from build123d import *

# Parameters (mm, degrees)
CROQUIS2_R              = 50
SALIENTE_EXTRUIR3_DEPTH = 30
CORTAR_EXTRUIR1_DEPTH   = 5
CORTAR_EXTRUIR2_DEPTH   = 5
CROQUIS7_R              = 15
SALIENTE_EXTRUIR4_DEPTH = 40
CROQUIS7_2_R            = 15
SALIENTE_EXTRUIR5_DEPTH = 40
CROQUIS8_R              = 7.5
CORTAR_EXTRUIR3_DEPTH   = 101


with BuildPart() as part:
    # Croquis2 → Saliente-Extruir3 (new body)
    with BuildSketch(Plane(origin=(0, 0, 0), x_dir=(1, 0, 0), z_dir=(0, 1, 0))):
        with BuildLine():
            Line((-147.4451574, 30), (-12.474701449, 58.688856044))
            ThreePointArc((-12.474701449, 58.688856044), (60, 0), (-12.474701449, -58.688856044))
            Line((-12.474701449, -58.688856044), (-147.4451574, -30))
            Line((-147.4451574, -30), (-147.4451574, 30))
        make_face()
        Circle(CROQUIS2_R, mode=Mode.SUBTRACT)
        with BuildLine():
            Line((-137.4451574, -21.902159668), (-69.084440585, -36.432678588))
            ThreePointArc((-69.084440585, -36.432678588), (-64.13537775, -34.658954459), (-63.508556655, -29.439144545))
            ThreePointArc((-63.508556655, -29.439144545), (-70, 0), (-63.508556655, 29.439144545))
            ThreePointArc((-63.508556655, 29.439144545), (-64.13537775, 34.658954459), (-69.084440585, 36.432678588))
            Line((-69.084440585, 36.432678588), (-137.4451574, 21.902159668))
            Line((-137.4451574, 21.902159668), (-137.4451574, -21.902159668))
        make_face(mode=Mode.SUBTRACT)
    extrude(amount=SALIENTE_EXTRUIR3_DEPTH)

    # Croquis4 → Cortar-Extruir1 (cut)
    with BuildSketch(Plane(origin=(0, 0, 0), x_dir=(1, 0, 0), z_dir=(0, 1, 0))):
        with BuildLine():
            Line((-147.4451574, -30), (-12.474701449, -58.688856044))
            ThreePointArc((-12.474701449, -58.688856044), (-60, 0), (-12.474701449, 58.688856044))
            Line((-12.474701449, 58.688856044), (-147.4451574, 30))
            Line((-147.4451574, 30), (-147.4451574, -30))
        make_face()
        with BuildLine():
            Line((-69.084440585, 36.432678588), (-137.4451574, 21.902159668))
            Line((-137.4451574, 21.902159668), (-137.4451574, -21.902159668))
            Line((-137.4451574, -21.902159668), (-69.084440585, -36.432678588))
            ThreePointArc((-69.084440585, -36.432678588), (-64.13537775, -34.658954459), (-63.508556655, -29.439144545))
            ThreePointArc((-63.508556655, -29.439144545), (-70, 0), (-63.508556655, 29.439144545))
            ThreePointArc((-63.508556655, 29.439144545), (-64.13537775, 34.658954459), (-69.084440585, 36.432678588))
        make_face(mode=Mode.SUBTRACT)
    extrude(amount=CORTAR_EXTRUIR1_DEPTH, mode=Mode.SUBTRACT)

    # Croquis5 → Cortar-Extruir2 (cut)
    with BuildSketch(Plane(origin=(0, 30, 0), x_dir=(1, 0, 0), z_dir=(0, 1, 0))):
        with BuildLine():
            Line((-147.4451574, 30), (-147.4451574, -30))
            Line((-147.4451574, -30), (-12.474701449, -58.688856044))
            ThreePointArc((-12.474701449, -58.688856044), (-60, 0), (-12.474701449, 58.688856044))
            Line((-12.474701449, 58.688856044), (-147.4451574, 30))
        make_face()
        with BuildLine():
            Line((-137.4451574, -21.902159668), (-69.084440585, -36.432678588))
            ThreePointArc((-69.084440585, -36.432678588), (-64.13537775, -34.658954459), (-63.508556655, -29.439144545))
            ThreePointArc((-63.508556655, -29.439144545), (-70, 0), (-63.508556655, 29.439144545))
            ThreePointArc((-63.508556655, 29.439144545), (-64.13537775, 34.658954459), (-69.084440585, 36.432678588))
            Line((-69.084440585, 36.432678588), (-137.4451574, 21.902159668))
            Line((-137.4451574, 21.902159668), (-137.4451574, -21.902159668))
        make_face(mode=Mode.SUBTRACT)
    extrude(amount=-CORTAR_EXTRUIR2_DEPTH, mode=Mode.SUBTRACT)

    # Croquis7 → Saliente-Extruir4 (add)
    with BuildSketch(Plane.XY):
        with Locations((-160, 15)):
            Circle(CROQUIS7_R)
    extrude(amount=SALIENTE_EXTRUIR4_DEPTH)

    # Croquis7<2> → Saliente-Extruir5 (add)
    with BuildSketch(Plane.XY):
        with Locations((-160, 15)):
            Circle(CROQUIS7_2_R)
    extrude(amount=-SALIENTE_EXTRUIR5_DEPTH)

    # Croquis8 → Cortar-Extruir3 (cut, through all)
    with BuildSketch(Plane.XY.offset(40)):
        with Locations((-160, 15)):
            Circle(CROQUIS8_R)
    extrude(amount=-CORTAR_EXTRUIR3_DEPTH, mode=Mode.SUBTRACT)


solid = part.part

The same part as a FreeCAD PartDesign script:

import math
import FreeCAD as App
import Part
import Sketcher

V = App.Vector
Q = App.Units.Quantity

doc = App.newDocument("Part")
body = doc.addObject("PartDesign::Body", "Body")

# Sketch on XZ plane
sketch1 = doc.addObject("Sketcher::SketchObject", "Sketch")
body.addObject(sketch1)
sketch1.AttachmentSupport = (doc.XZ_Plane, [""])
sketch1.MapMode = "FlatFace"
sketch1.addGeometry([
    Part.LineSegment(V(-12, -59, 0), V(-147, -30, 0)),  # 0
    Part.LineSegment(V(-147, -30, 0), V(-147, 30, 0)),  # 1
    Part.LineSegment(V(-147, 30, 0), V(-12, 59, 0)),  # 2
    Part.ArcOfCircle(Part.Circle(V(0, 0, 0), V(0, 0, 1), 60), math.radians(-102), math.radians(102)),  # 3
    Part.Circle(V(0, 0, 0), V(0, 0, 1), 50),  # 4
    Part.LineSegment(V(-137, 22, 0), V(-137, -22, 0)),  # 5
    Part.LineSegment(V(-137, -22, 0), V(-69, -36, 0)),  # 6
    Part.ArcOfCircle(Part.Circle(V(-68, -32, 0), V(0, 0, 1), 5), math.radians(-102), math.radians(25)),  # 7
    Part.ArcOfCircle(Part.Circle(V(0, 0, 0), V(0, 0, 1), 70), math.radians(155), math.radians(205)),  # 8
    Part.ArcOfCircle(Part.Circle(V(-68, 32, 0), V(0, 0, 1), 5), math.radians(-25), math.radians(102)),  # 9
    Part.LineSegment(V(-69, 36, 0), V(-137, 22, 0)),  # 10
], False)
sketch1.addConstraint([
    Sketcher.Constraint("Coincident", 0, 2, 1, 1),
    Sketcher.Constraint("Coincident", 1, 2, 2, 1),
    Sketcher.Constraint("Tangent", 2, 2, 3, 2),
    Sketcher.Constraint("Tangent", 3, 1, 0, 1),
    Sketcher.Constraint("Coincident", 5, 2, 6, 1),
    Sketcher.Constraint("Tangent", 6, 2, 7, 1),
    Sketcher.Constraint("Tangent", 7, 2, 8, 2),
    Sketcher.Constraint("Tangent", 8, 1, 9, 1),
    Sketcher.Constraint("Tangent", 9, 2, 10, 1),
    Sketcher.Constraint("Coincident", 10, 2, 5, 1),
    Sketcher.Constraint("Vertical", 1),
    Sketcher.Constraint("Vertical", 5),
    Sketcher.Constraint("Coincident", 3, 3, -1, 1),
    Sketcher.Constraint("Coincident", 4, 3, -1, 1),
    Sketcher.Constraint("Coincident", 8, 3, -1, 1),
    Sketcher.Constraint("Equal", 7, 9),
    Sketcher.Constraint("Symmetric", 6, 2, 9, 2, -1),
    Sketcher.Constraint("Parallel", 0, 6),
    Sketcher.Constraint("Parallel", 2, 10),
    Sketcher.Constraint("Diameter", 4, Q("100 mm")),
    Sketcher.Constraint("Radius", 3, Q("60 mm")),
    Sketcher.Constraint("Radius", 7, Q("5 mm")),
    Sketcher.Constraint("Radius", 8, Q("70 mm")),
    Sketcher.Constraint("DistanceY", 1, 1, 1, 2, Q("60 mm")),
    Sketcher.Constraint("Angle", 0, Q("168 deg")),
    Sketcher.Constraint("DistanceX", 0, 2, 5, 2, Q("10 mm")),
    Sketcher.Constraint("DistanceY", 5, 2, 5, 1, Q("43.804319 mm")),
])
pad1 = doc.addObject("PartDesign::Pad", "Pad")
body.addObject(pad1)
pad1.Profile = sketch1
pad1.Length = 30
pad1.Reversed = True

# Sketch on XZ plane
sketch2 = doc.addObject("Sketcher::SketchObject", "Sketch001")
body.addObject(sketch2)
sketch2.AttachmentSupport = (doc.XZ_Plane, [""])
sketch2.MapMode = "FlatFace"
sketch2.addGeometry([
    Part.LineSegment(V(-147, 30, 0), V(-12, 59, 0)),  # 0
    Part.ArcOfCircle(Part.Circle(V(0, 0, 0), V(0, 0, 1), 60), math.radians(102), math.radians(258)),  # 1
    Part.LineSegment(V(-12, -59, 0), V(-147, -30, 0)),  # 2
    Part.LineSegment(V(-147, -30, 0), V(-147, 30, 0)),  # 3
    Part.LineSegment(V(-137, -22, 0), V(-69, -36, 0)),  # 4
    Part.ArcOfCircle(Part.Circle(V(-68, -32, 0), V(0, 0, 1), 5), math.radians(-102), math.radians(25)),  # 5
    Part.ArcOfCircle(Part.Circle(V(0, 0, 0), V(0, 0, 1), 70), math.radians(155), math.radians(205)),  # 6
    Part.ArcOfCircle(Part.Circle(V(-68, 32, 0), V(0, 0, 1), 5), math.radians(-25), math.radians(102)),  # 7
    Part.LineSegment(V(-69, 36, 0), V(-137, 22, 0)),  # 8
    Part.LineSegment(V(-137, 22, 0), V(-137, -22, 0)),  # 9
], False)
sketch2.addConstraint([
    Sketcher.Constraint("Tangent", 0, 2, 1, 1),
    Sketcher.Constraint("Tangent", 1, 2, 2, 1),
    Sketcher.Constraint("Coincident", 2, 2, 3, 1),
    Sketcher.Constraint("Coincident", 3, 2, 0, 1),
    Sketcher.Constraint("Tangent", 4, 2, 5, 1),
    Sketcher.Constraint("Tangent", 5, 2, 6, 2),
    Sketcher.Constraint("Tangent", 6, 1, 7, 1),
    Sketcher.Constraint("Tangent", 7, 2, 8, 1),
    Sketcher.Constraint("Coincident", 8, 2, 9, 1),
    Sketcher.Constraint("Coincident", 9, 2, 4, 1),
    Sketcher.Constraint("Vertical", 3),
    Sketcher.Constraint("Vertical", 9),
    Sketcher.Constraint("Coincident", 1, 3, -1, 1),
    Sketcher.Constraint("Coincident", 6, 3, -1, 1),
    Sketcher.Constraint("Equal", 5, 7),
    Sketcher.Constraint("Symmetric", 4, 2, 7, 2, -1),
    Sketcher.Constraint("Parallel", 2, 4),
    Sketcher.Constraint("Parallel", 0, 8),
    Sketcher.Constraint("Radius", 1, Q("60 mm")),
    Sketcher.Constraint("Radius", 5, Q("5 mm")),
    Sketcher.Constraint("Radius", 6, Q("70 mm")),
    Sketcher.Constraint("DistanceY", 3, 1, 3, 2, Q("60 mm")),
    Sketcher.Constraint("Angle", 0, Q("12 deg")),
    Sketcher.Constraint("DistanceX", 3, 2, 8, 2, Q("10 mm")),
    Sketcher.Constraint("DistanceY", 9, 2, 9, 1, Q("43.804319 mm")),
])
pocket1 = doc.addObject("PartDesign::Pocket", "Pocket")
body.addObject(pocket1)
pocket1.Profile = sketch2
pocket1.Length = 5

# Sketch on XZ plane
sketch3 = doc.addObject("Sketcher::SketchObject", "Sketch002")
body.addObject(sketch3)
sketch3.AttachmentSupport = (doc.XZ_Plane, [""])
sketch3.MapMode = "FlatFace"
sketch3.AttachmentOffset = App.Placement(V(0, 0, -30), App.Rotation())
sketch3.addGeometry([
    Part.LineSegment(V(-147, -30, 0), V(-147, 30, 0)),  # 0
    Part.LineSegment(V(-147, 30, 0), V(-12, 59, 0)),  # 1
    Part.ArcOfCircle(Part.Circle(V(0, 0, 0), V(0, 0, 1), 60), math.radians(102), math.radians(258)),  # 2
    Part.LineSegment(V(-12, -59, 0), V(-147, -30, 0)),  # 3
    Part.LineSegment(V(-69, 36, 0), V(-137, 22, 0)),  # 4
    Part.LineSegment(V(-137, 22, 0), V(-137, -22, 0)),  # 5
    Part.LineSegment(V(-137, -22, 0), V(-69, -36, 0)),  # 6
    Part.ArcOfCircle(Part.Circle(V(-68, -32, 0), V(0, 0, 1), 5), math.radians(-102), math.radians(25)),  # 7
    Part.ArcOfCircle(Part.Circle(V(0, 0, 0), V(0, 0, 1), 70), math.radians(155), math.radians(205)),  # 8
    Part.ArcOfCircle(Part.Circle(V(-68, 32, 0), V(0, 0, 1), 5), math.radians(-25), math.radians(102)),  # 9
], False)
sketch3.addConstraint([
    Sketcher.Constraint("Coincident", 0, 2, 1, 1),
    Sketcher.Constraint("Tangent", 1, 2, 2, 1),
    Sketcher.Constraint("Tangent", 2, 2, 3, 1),
    Sketcher.Constraint("Coincident", 3, 2, 0, 1),
    Sketcher.Constraint("Coincident", 4, 2, 5, 1),
    Sketcher.Constraint("Coincident", 5, 2, 6, 1),
    Sketcher.Constraint("Tangent", 6, 2, 7, 1),
    Sketcher.Constraint("Tangent", 7, 2, 8, 2),
    Sketcher.Constraint("Tangent", 8, 1, 9, 1),
    Sketcher.Constraint("Tangent", 9, 2, 4, 1),
    Sketcher.Constraint("Vertical", 0),
    Sketcher.Constraint("Vertical", 5),
    Sketcher.Constraint("Coincident", 2, 3, -1, 1),
    Sketcher.Constraint("Coincident", 8, 3, -1, 1),
    Sketcher.Constraint("Equal", 7, 9),
    Sketcher.Constraint("Symmetric", 6, 2, 9, 2, -1),
    Sketcher.Constraint("Parallel", 1, 4),
    Sketcher.Constraint("Parallel", 3, 6),
    Sketcher.Constraint("Radius", 2, Q("60 mm")),
    Sketcher.Constraint("Radius", 7, Q("5 mm")),
    Sketcher.Constraint("Radius", 8, Q("70 mm")),
    Sketcher.Constraint("DistanceY", 0, 1, 0, 2, Q("60 mm")),
    Sketcher.Constraint("Angle", 1, Q("12 deg")),
    Sketcher.Constraint("DistanceX", 0, 2, 4, 2, Q("10 mm")),
    Sketcher.Constraint("DistanceY", 5, 2, 5, 1, Q("43.804319 mm")),
])
pocket2 = doc.addObject("PartDesign::Pocket", "Pocket001")
body.addObject(pocket2)
pocket2.Profile = sketch3
pocket2.Length = 5
pocket2.Reversed = True

# Sketch on XY plane
sketch4 = doc.addObject("Sketcher::SketchObject", "Sketch003")
body.addObject(sketch4)
sketch4.AttachmentSupport = (doc.XY_Plane, [""])
sketch4.MapMode = "FlatFace"
sketch4.addGeometry(Part.Circle(V(-160, 15, 0), V(0, 0, 1), 15), False)
sketch4.addConstraint([
    Sketcher.Constraint("Diameter", 0, Q("30 mm")),
    Sketcher.Constraint("DistanceX", 0, 3, -1, 1, Q("160 mm")),
    Sketcher.Constraint("DistanceY", -1, 1, 0, 3, Q("15 mm")),
])
pad2 = doc.addObject("PartDesign::Pad", "Pad001")
body.addObject(pad2)
pad2.Profile = sketch4
pad2.Length = 40

# Sketch on XY plane
sketch5 = doc.addObject("Sketcher::SketchObject", "Sketch004")
body.addObject(sketch5)
sketch5.AttachmentSupport = (doc.XY_Plane, [""])
sketch5.MapMode = "FlatFace"
sketch5.addGeometry(Part.Circle(V(-160, 15, 0), V(0, 0, 1), 15), False)
sketch5.addConstraint([
    Sketcher.Constraint("Diameter", 0, Q("30 mm")),
    Sketcher.Constraint("DistanceX", 0, 3, -1, 1, Q("160 mm")),
    Sketcher.Constraint("DistanceY", -1, 1, 0, 3, Q("15 mm")),
])
pad3 = doc.addObject("PartDesign::Pad", "Pad002")
body.addObject(pad3)
pad3.Profile = sketch5
pad3.Length = 40
pad3.Reversed = True

# Sketch on XY plane
sketch6 = doc.addObject("Sketcher::SketchObject", "Sketch005")
body.addObject(sketch6)
sketch6.AttachmentSupport = (doc.XY_Plane, [""])
sketch6.MapMode = "FlatFace"
sketch6.AttachmentOffset = App.Placement(V(0, 0, 40), App.Rotation())
sketch6.addGeometry(Part.Circle(V(-160, 15, 0), V(0, 0, 1), 8), False)
sketch6.addConstraint([
    Sketcher.Constraint("Diameter", 0, Q("15 mm")),
    Sketcher.Constraint("DistanceX", 0, 3, -1, 1, Q("160 mm")),
    Sketcher.Constraint("DistanceY", -1, 1, 0, 3, Q("15 mm")),
])
pocket3 = doc.addObject("PartDesign::Pocket", "Pocket002")
body.addObject(pocket3)
pocket3.Profile = sketch6
pocket3.Type = "ThroughAll"

doc.recompute()
